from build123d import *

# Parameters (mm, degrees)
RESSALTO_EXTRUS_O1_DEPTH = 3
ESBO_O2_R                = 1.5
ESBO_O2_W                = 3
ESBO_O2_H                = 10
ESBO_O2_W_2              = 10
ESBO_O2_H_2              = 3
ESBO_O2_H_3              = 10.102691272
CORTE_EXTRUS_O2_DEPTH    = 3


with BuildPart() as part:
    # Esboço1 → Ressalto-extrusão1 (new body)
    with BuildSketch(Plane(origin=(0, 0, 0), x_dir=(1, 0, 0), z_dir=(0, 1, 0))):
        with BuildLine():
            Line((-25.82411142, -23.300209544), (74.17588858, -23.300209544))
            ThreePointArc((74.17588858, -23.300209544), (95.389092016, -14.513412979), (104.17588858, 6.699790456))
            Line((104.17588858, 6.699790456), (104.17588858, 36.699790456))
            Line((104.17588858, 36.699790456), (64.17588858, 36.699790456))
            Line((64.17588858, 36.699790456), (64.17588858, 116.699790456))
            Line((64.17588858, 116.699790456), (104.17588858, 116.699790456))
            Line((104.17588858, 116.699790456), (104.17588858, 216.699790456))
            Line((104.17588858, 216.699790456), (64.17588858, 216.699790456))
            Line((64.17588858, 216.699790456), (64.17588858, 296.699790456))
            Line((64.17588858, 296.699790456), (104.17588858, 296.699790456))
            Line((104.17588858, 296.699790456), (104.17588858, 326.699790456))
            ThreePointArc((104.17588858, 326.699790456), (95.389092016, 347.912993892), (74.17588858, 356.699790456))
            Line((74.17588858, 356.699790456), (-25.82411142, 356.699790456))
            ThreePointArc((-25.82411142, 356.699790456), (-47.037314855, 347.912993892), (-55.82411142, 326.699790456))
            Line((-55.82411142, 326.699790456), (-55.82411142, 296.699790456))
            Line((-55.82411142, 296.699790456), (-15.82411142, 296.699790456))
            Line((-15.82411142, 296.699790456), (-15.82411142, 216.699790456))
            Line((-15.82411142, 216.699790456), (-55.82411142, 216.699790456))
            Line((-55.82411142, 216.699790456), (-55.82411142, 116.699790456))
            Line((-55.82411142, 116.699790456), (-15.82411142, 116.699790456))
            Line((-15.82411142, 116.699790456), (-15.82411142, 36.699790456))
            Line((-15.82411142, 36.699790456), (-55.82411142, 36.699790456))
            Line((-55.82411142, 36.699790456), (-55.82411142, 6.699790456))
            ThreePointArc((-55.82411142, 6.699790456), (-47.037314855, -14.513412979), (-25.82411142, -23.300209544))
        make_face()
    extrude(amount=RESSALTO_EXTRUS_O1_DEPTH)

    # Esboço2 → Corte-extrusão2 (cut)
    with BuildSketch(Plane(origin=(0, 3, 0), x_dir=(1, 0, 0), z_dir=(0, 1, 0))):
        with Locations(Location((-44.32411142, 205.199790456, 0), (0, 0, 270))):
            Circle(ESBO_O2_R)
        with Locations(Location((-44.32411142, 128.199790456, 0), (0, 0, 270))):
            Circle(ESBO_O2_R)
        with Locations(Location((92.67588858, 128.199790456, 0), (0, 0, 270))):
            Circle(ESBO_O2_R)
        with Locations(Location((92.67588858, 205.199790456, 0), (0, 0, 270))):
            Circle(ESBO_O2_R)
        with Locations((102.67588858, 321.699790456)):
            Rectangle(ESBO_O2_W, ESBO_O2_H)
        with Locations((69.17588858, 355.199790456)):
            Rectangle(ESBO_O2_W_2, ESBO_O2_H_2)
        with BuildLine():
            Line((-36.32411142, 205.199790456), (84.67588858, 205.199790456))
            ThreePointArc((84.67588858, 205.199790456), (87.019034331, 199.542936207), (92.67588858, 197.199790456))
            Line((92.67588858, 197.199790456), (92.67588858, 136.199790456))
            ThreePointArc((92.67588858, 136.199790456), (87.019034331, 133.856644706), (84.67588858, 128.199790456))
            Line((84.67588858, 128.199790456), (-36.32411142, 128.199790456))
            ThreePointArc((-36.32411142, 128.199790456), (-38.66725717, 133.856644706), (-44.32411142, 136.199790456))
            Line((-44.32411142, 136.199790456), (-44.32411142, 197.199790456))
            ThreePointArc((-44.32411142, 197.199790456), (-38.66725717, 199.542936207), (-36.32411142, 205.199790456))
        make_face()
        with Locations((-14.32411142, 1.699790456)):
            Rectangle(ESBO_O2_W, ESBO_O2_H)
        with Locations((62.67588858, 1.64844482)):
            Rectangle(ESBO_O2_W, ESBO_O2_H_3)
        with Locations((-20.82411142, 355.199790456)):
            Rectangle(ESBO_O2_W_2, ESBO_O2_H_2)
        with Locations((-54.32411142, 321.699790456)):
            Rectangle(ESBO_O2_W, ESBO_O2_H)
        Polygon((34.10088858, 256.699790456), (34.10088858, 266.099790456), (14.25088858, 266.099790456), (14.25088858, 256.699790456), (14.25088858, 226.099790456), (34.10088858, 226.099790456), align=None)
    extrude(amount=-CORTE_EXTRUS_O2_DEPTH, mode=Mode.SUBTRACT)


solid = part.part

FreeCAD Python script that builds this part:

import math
import FreeCAD as App
import Part
import Sketcher
from FreeCAD import Vector


def add_polygon(sketch, points):
    """Adds a closed chain of lines whose ends are joined by coincident constraints."""
    first, n = sketch.GeometryCount, len(points)
    for a, b in zip(points, points[1:] + points[:1]):
        sketch.addGeometry(Part.LineSegment(App.Vector(*a, 0), App.Vector(*b, 0)), False)
    for i in range(n):
        sketch.addConstraint(Sketcher.Constraint("Coincident", first + i, 2, first + (i + 1) % n, 1))

doc = App.newDocument("Part")
body = doc.addObject("PartDesign::Body", "Body")

sketch1 = doc.addObject("Sketcher::SketchObject", "Sketch")
body.addObject(sketch1)
sketch1.AttachmentSupport = (doc.XZ_Plane, [""])
sketch1.MapMode = "FlatFace"
sketch1.addGeometry(Part.LineSegment(Vector(-26, 23, 0), Vector(74, 23, 0)), False)
sketch1.addGeometry(Part.ArcOfCircle(Part.Circle(Vector(74, -7, 0), Vector(0, 0, 1), 30), math.radians(0), math.radians(90)), False)
sketch1.addGeometry(Part.LineSegment(Vector(104, -7, 0), Vector(104, -37, 0)), False)
sketch1.addGeometry(Part.LineSegment(Vector(104, -37, 0), Vector(64, -37, 0)), False)
sketch1.addGeometry(Part.LineSegment(Vector(64, -37, 0), Vector(64, -117, 0)), False)
sketch1.addGeometry(Part.LineSegment(Vector(64, -117, 0), Vector(104, -117, 0)), False)
sketch1.addGeometry(Part.LineSegment(Vector(104, -117, 0), Vector(104, -217, 0)), False)
sketch1.addGeometry(Part.LineSegment(Vector(104, -217, 0), Vector(64, -217, 0)), False)
sketch1.addGeometry(Part.LineSegment(Vector(64, -217, 0), Vector(64, -297, 0)), False)
sketch1.addGeometry(Part.LineSegment(Vector(64, -297, 0), Vector(104, -297, 0)), False)
sketch1.addGeometry(Part.LineSegment(Vector(104, -297, 0), Vector(104, -327, 0)), False)
sketch1.addGeometry(Part.ArcOfCircle(Part.Circle(Vector(74, -327, 0), Vector(0, 0, 1), 30), math.radians(-90), math.radians(0)), False)
sketch1.addGeometry(Part.LineSegment(Vector(74, -357, 0), Vector(-26, -357, 0)), False)
sketch1.addGeometry(Part.ArcOfCircle(Part.Circle(Vector(-26, -327, 0), Vector(0, 0, 1), 30), math.radians(180), math.radians(270)), False)
sketch1.addGeometry(Part.LineSegment(Vector(-56, -327, 0), Vector(-56, -297, 0)), False)
sketch1.addGeometry(Part.LineSegment(Vector(-56, -297, 0), Vector(-16, -297, 0)), False)
sketch1.addGeometry(Part.LineSegment(Vector(-16, -297, 0), Vector(-16, -217, 0)), False)
sketch1.addGeometry(Part.LineSegment(Vector(-16, -217, 0), Vector(-56, -217, 0)), False)
sketch1.addGeometry(Part.LineSegment(Vector(-56, -217, 0), Vector(-56, -117, 0)), False)
sketch1.addGeometry(Part.LineSegment(Vector(-56, -117, 0), Vector(-16, -117, 0)), False)
sketch1.addGeometry(Part.LineSegment(Vector(-16, -117, 0), Vector(-16, -37, 0)), False)
sketch1.addGeometry(Part.LineSegment(Vector(-16, -37, 0), Vector(-56, -37, 0)), False)
sketch1.addGeometry(Part.LineSegment(Vector(-56, -37, 0), Vector(-56, -7, 0)), False)
sketch1.addGeometry(Part.ArcOfCircle(Part.Circle(Vector(-26, -7, 0), Vector(0, 0, 1), 30), math.radians(90), math.radians(180)), False)
sketch1.addConstraint(Sketcher.Constraint("Tangent", 0, 2, 1, 2))
sketch1.addConstraint(Sketcher.Constraint("Tangent", 1, 1, 2, 1))
sketch1.addConstraint(Sketcher.Constraint("Coincident", 2, 2, 3, 1))
sketch1.addConstraint(Sketcher.Constraint("Coincident", 3, 2, 4, 1))
sketch1.addConstraint(Sketcher.Constraint("Coincident", 4, 2, 5, 1))
sketch1.addConstraint(Sketcher.Constraint("Coincident", 5, 2, 6, 1))
sketch1.addConstraint(Sketcher.Constraint("Coincident", 6, 2, 7, 1))
sketch1.addConstraint(Sketcher.Constraint("Coincident", 7, 2, 8, 1))
sketch1.addConstraint(Sketcher.Constraint("Coincident", 8, 2, 9, 1))
sketch1.addConstraint(Sketcher.Constraint("Coincident", 9, 2, 10, 1))
sketch1.addConstraint(Sketcher.Constraint("Tangent", 10, 2, 11, 2))
sketch1.addConstraint(Sketcher.Constraint("Tangent", 11, 1, 12, 1))
sketch1.addConstraint(Sketcher.Constraint("Tangent", 12, 2, 13, 2))
sketch1.addConstraint(Sketcher.Constraint("Tangent", 13, 1, 14, 1))
sketch1.addConstraint(Sketcher.Constraint("Coincident", 14, 2, 15, 1))
sketch1.addConstraint(Sketcher.Constraint("Coincident", 15, 2, 16, 1))
sketch1.addConstraint(Sketcher.Constraint("Coincident", 16, 2, 17, 1))
sketch1.addConstraint(Sketcher.Constraint("Coincident", 17, 2, 18, 1))
sketch1.addConstraint(Sketcher.Constraint("Coincident", 18, 2, 19, 1))
sketch1.addConstraint(Sketcher.Constraint("Coincident", 19, 2, 20, 1))
sketch1.addConstraint(Sketcher.Constraint("Coincident", 20, 2, 21, 1))
sketch1.addConstraint(Sketcher.Constraint("Coincident", 21, 2, 22, 1))
sketch1.addConstraint(Sketcher.Constraint("Tangent", 22, 2, 23, 2))
sketch1.addConstraint(Sketcher.Constraint("Tangent", 23, 1, 0, 1))
sketch1.addConstraint(Sketcher.Constraint("Horizontal", 0))
sketch1.addConstraint(Sketcher.Constraint("Vertical", 2))
sketch1.addConstraint(Sketcher.Constraint("Horizontal", 3))
sketch1.addConstraint(Sketcher.Constraint("Vertical", 4))
sketch1.addConstraint(Sketcher.Constraint("Horizontal", 5))
sketch1.addConstraint(Sketcher.Constraint("Vertical", 6))
sketch1.addConstraint(Sketcher.Constraint("Horizontal", 7))
sketch1.addConstraint(Sketcher.Constraint("Vertical", 8))
sketch1.addConstraint(Sketcher.Constraint("Horizontal", 9))
sketch1.addConstraint(Sketcher.Constraint("Vertical", 10))
sketch1.addConstraint(Sketcher.Constraint("Horizontal", 12))
sketch1.addConstraint(Sketcher.Constraint("Vertical", 14))
sketch1.addConstraint(Sketcher.Constraint("Horizontal", 15))
sketch1.addConstraint(Sketcher.Constraint("Vertical", 16))
sketch1.addConstraint(Sketcher.Constraint("Horizontal", 17))
sketch1.addConstraint(Sketcher.Constraint("Vertical", 18))
sketch1.addConstraint(Sketcher.Constraint("Horizontal", 19))
sketch1.addConstraint(Sketcher.Constraint("Vertical", 20))
sketch1.addConstraint(Sketcher.Constraint("Horizontal", 21))
sketch1.addConstraint(Sketcher.Constraint("Vertical", 22))
sketch1.addConstraint(Sketcher.Constraint("Equal", 1, 11))
sketch1.addConstraint(Sketcher.Constraint("Equal", 11, 13))
sketch1.addConstraint(Sketcher.Constraint("Equal", 13, 23))
sketch1.addConstraint(Sketcher.Constraint("Horizontal", 9, 2, 14, 2))
sketch1.addConstraint(Sketcher.Constraint("Horizontal", 7, 2, 16, 2))
sketch1.addConstraint(Sketcher.Constraint("Horizontal", 5, 2, 18, 2))
sketch1.addConstraint(Sketcher.Constraint("Horizontal", 3, 2, 20, 2))
sketch1.addConstraint(Sketcher.Constraint("Vertical", 1, 3, 11, 3))
sketch1.addConstraint(Sketcher.Constraint("Vertical", 13, 3, 23, 3))
sketch1.addConstraint(Sketcher.Constraint("Vertical", 2, 2, 5, 2))
sketch1.addConstraint(Sketcher.Constraint("Vertical", 4, 2, 7, 2))
sketch1.addConstraint(Sketcher.Constraint("Vertical", 14, 2, 17, 2))
sketch1.addConstraint(Sketcher.Constraint("Vertical", 16, 2, 19, 2))
sketch1.addConstraint(Sketcher.Constraint("Equal", 9, 15))
sketch1.addConstraint(Sketcher.Constraint("Equal", 12, 6))
sketch1.addConstraint(Sketcher.Constraint("Equal", 4, 8))
sketch1.addConstraint(Sketcher.Constraint("Equal", 2, 10))
sketch1.addConstraint(Sketcher.Constraint("Radius", 1, 30.0))
sketch1.addConstraint(Sketcher.Constraint("DistanceX", 0, 1, 0, 2, 100.0))
sketch1.addConstraint(Sketcher.Constraint("DistanceX", 3, 2, 3, 1, 40.0))
sketch1.addConstraint(Sketcher.Constraint("DistanceY", 2, 2, 2, 1, 30.0))
sketch1.addConstraint(Sketcher.Constraint("DistanceY", 4, 2, 4, 1, 80.0))
sketch1.addConstraint(Sketcher.Constraint("DistanceX", -1, 1, 1, 3, 74.175889))
sketch1.addConstraint(Sketcher.Constraint("DistanceY", 1, 3, -1, 1, 6.69979))
pad1 = doc.addObject("PartDesign::Pad", "Pad")
body.addObject(pad1)
pad1.Profile = sketch1
pad1.Length = 3
pad1.Reversed = True

sketch2 = doc.addObject("Sketcher::SketchObject", "Sketch001")
body.addObject(sketch2)
sketch2.AttachmentSupport = (doc.XZ_Plane, [""])
sketch2.MapMode = "FlatFace"
sketch2.AttachmentOffset = App.Placement(Vector(0, 0, -3), App.Rotation())
sketch2.addGeometry(Part.Circle(Vector(-44.3, -205.2, 0), Vector(0, 0, 1), 1.5), False)
sketch2.addGeometry(Part.Circle(Vector(-44.3, -128.2, 0), Vector(0, 0, 1), 1.5), False)
sketch2.addGeometry(Part.Circle(Vector(92.7, -128.2, 0), Vector(0, 0, 1), 1.5), False)
sketch2.addGeometry(Part.Circle(Vector(92.7, -205.2, 0), Vector(0, 0, 1), 1.5), False)
add_polygon(sketch2, [(101.2, -326.7), (101.2, -316.7), (104.2, -316.7), (104.2, -326.7)])
add_polygon(sketch2, [(64.2, -356.7), (64.2, -353.7), (74.2, -353.7), (74.2, -356.7)])
sketch2.addGeometry(Part.LineSegment(Vector(84.7, -205.2, 0), Vector(-36.3, -205.2, 0)), False)
sketch2.addGeometry(Part.ArcOfCircle(Part.Circle(Vector(-44.3, -205.2, 0), Vector(0, 0, 1), 8), math.radians(0), math.radians(90)), False)
sketch2.addGeometry(Part.LineSegment(Vector(-44.3, -197.2, 0), Vector(-44.3, -136.2, 0)), False)
sketch2.addGeometry(Part.ArcOfCircle(Part.Circle(Vector(-44.3, -128.2, 0), Vector(0, 0, 1), 8), math.radians(-90), math.radians(0)), False)
sketch2.addGeometry(Part.LineSegment(Vector(-36.3, -128.2, 0), Vector(84.7, -128.2, 0)), False)
sketch2.addGeometry(Part.ArcOfCircle(Part.Circle(Vector(92.7, -128.2, 0), Vector(0, 0, 1), 8), math.radians(180), math.radians(270)), False)
sketch2.addGeometry(Part.LineSegment(Vector(92.7, -136.2, 0), Vector(92.7, -197.2, 0)), False)
sketch2.addGeometry(Part.ArcOfCircle(Part.Circle(Vector(92.7, -205.2, 0), Vector(0, 0, 1), 8), math.radians(90), math.radians(180)), False)
add_polygon(sketch2, [(-15.8, -6.7), (-15.8, 3.3), (-12.8, 3.3), (-12.8, -6.7)])
add_polygon(sketch2, [(61.2, -6.7), (61.2, 3.4), (64.2, 3.4), (64.2, -6.7)])
add_polygon(sketch2, [(-25.8, -356.7), (-25.8, -353.7), (-15.8, -353.7), (-15.8, -356.7)])
add_polygon(sketch2, [(-55.8, -326.7), (-55.8, -316.7), (-52.8, -316.7), (-52.8, -326.7)])
add_polygon(sketch2, [(34.1, -266.1), (14.3, -266.1), (14.3, -226.1), (34.1, -226.1)])
sketch2.addConstraint(Sketcher.Constraint("Coincident", 12, 2, 13, 1))
sketch2.addConstraint(Sketcher.Constraint("Coincident", 13, 2, 14, 1))
sketch2.addConstraint(Sketcher.Constraint("Coincident", 14, 2, 15, 1))
sketch2.addConstraint(Sketcher.Constraint("Coincident", 15, 2, 16, 1))
sketch2.addConstraint(Sketcher.Constraint("Coincident", 16, 2, 17, 1))
sketch2.addConstraint(Sketcher.Constraint("Coincident", 17, 2, 18, 1))
sketch2.addConstraint(Sketcher.Constraint("Coincident", 18, 2, 19, 1))
sketch2.addConstraint(Sketcher.Constraint("Coincident", 19, 2, 12, 1))
sketch2.addConstraint(Sketcher.Constraint("Vertical", 4))
sketch2.addConstraint(Sketcher.Constraint("Horizontal", 5))
sketch2.addConstraint(Sketcher.Constraint("Vertical", 6))
sketch2.addConstraint(Sketcher.Constraint("Horizontal", 7))
sketch2.addConstraint(Sketcher.Constraint("Vertical", 8))
sketch2.addConstraint(Sketcher.Constraint("Horizontal", 9))
sketch2.addConstraint(Sketcher.Constraint("Vertical", 10))
sketch2.addConstraint(Sketcher.Constraint("Horizontal", 11))
sketch2.addConstraint(Sketcher.Constraint("Horizontal", 12))
sketch2.addConstraint(Sketcher.Constraint("Vertical", 14))
sketch2.addConstraint(Sketcher.Constraint("Horizontal", 16))
sketch2.addConstraint(Sketcher.Constraint("Vertical", 18))
sketch2.addConstraint(Sketcher.Constraint("Vertical", 20))
sketch2.addConstraint(Sketcher.Constraint("Horizontal", 21))
sketch2.addConstraint(Sketcher.Constraint("Vertical", 22))
sketch2.addConstraint(Sketcher.Constraint("Horizontal", 23))
sketch2.addConstraint(Sketcher.Constraint("Vertical", 24))
sketch2.addConstraint(Sketcher.Constraint("Horizontal", 25))
sketch2.addConstraint(Sketcher.Constraint("Vertical", 26))
sketch2.addConstraint(Sketcher.Constraint("Horizontal", 27))
sketch2.addConstraint(Sketcher.Constraint("Vertical", 28))
sketch2.addConstraint(Sketcher.Constraint("Horizontal", 29))
sketch2.addConstraint(Sketcher.Constraint("Vertical", 30))
sketch2.addConstraint(Sketcher.Constraint("Horizontal", 31))
sketch2.addConstraint(Sketcher.Constraint("Vertical", 32))
sketch2.addConstraint(Sketcher.Constraint("Horizontal", 33))
sketch2.addConstraint(Sketcher.Constraint("Vertical", 34))
sketch2.addConstraint(Sketcher.Constraint("Horizontal", 35))
sketch2.addConstraint(Sketcher.Constraint("Horizontal", 36))
sketch2.addConstraint(Sketcher.Constraint("Vertical", 37))
sketch2.addConstraint(Sketcher.Constraint("Horizontal", 38))
sketch2.addConstraint(Sketcher.Constraint("Vertical", 39))
sketch2.addConstraint(Sketcher.Constraint("Coincident", 13, 3, 0, 3))
sketch2.addConstraint(Sketcher.Constraint("Coincident", 15, 3, 1, 3))
sketch2.addConstraint(Sketcher.Constraint("Coincident", 17, 3, 2, 3))
sketch2.addConstraint(Sketcher.Constraint("Coincident", 19, 3, 3, 3))
sketch2.addConstraint(Sketcher.Constraint("Equal", 0, 1))
sketch2.addConstraint(Sketcher.Constraint("Equal", 1, 2))
sketch2.addConstraint(Sketcher.Constraint("Equal", 2, 3))
sketch2.addConstraint(Sketcher.Constraint("Equal", 13, 15))
sketch2.addConstraint(Sketcher.Constraint("Equal", 15, 17))
sketch2.addConstraint(Sketcher.Constraint("Equal", 17, 19))
sketch2.addConstraint(Sketcher.Constraint("Horizontal", 1, 3, 2, 3))
sketch2.addConstraint(Sketcher.Constraint("Horizontal", 0, 3, 3, 3))
sketch2.addConstraint(Sketcher.Constraint("Horizontal", 19, 3, 12, 2))
sketch2.addConstraint(Sketcher.Constraint("Horizontal", 17, 3, 15, 2))
sketch2.addConstraint(Sketcher.Constraint("Horizontal", 23, 2, 26, 2))
sketch2.addConstraint(Sketcher.Constraint("Horizontal", 9, 2, 28, 2))
sketch2.addConstraint(Sketcher.Constraint("Horizontal", 11, 2, 30, 2))
sketch2.addConstraint(Sketcher.Constraint("Horizontal", 5, 2, 32, 2))
sketch2.addConstraint(Sketcher.Constraint("Horizontal", 7, 2, 34, 2))
sketch2.addConstraint(Sketcher.Constraint("Vertical", 0, 3, 1, 3))
sketch2.addConstraint(Sketcher.Constraint("Vertical", 2, 3, 3, 3))
sketch2.addConstraint(Sketcher.Constraint("Vertical", 15, 3, 13, 2))
sketch2.addConstraint(Sketcher.Constraint("Vertical", 19, 3, 17, 2))
sketch2.addConstraint(Sketcher.Constraint("Vertical", 11, 2, 25, 2))
sketch2.addConstraint(Sketcher.Constraint("Vertical", 23, 2, 29, 2))
sketch2.addConstraint(Sketcher.Constraint("Equal", 7, 21))
sketch2.addConstraint(Sketcher.Constraint("Equal", 23, 25))
sketch2.addConstraint(Sketcher.Constraint("Equal", 11, 29))
sketch2.addConstraint(Sketcher.Constraint("Equal", 27, 33))
sketch2.addConstraint(Sketcher.Constraint("Equal", 31, 4))
sketch2.addConstraint(Sketcher.Constraint("Equal", 35, 8))
sketch2.addConstraint(Sketcher.Constraint("Equal", 6, 20))
sketch2.addConstraint(Sketcher.Constraint("Diameter", 0, 3.0))
sketch2.addConstraint(Sketcher.Constraint("Radius", 13, 8.0))
sketch2.addConstraint(Sketcher.Constraint("DistanceX", 5, 1, 5, 2, 3.0))
sketch2.addConstraint(Sketcher.Constraint("DistanceX", 9, 1, 9, 2, 10.0))
sketch2.addConstraint(Sketcher.Constraint("DistanceX", 12, 2, 12, 1, 121.0))
sketch2.addConstraint(Sketcher.Constraint("DistanceY", 14, 1, 14, 2, 61.0))
sketch2.addConstraint(Sketcher.Constraint("DistanceY", 37, 1, 37, 2, 40.0))
sketch2.addConstraint(Sketcher.Constraint("DistanceX", 8, 2, 7, 2, 37.0))
sketch2.addConstraint(Sketcher.Constraint("DistanceY", 8, 2, 7, 2, 27.0))
sketch2.addConstraint(Sketcher.Constraint("DistanceX", 21, 2, 24, 2, 74.0))
sketch2.addConstraint(Sketcher.Constraint("DistanceX", 32, 2, 28, 2, 30.0))
sketch2.addConstraint(Sketcher.Constraint("DistanceX", 36, 2, 36, 1, 19.85))
sketch2.addConstraint(Sketcher.Constraint("DistanceX", 19, 3, 4, 2, 8.5))
sketch2.addConstraint(Sketcher.Constraint("DistanceY", 4, 2, 19, 3, 111.5))
sketch2.addConstraint(Sketcher.Constraint("DistanceY", 15, 2, 20, 2, 131.5))
sketch2.addConstraint(Sketcher.Constraint("DistanceY", 36, 2, 12, 2, 60.9))
sketch2.addConstraint(Sketcher.Constraint("DistanceX", 12, 2, 36, 2, 50.575))
sketch2.addConstraint(Sketcher.Constraint("DistanceY", 24, 1, 24, 2, 10.102691))
sketch2.addConstraint(Sketcher.Constraint("DistanceY", -1, 1, 24, 2, 3.402901))
sketch2.addConstraint(Sketcher.Constraint("DistanceX", 0, 3, -1, 1, 44.324111))
pocket1 = doc.addObject("PartDesign::Pocket", "Pocket")
body.addObject(pocket1)
pocket1.Profile = sketch2
pocket1.Length = 3
pocket1.Reversed = True

doc.recompute()
